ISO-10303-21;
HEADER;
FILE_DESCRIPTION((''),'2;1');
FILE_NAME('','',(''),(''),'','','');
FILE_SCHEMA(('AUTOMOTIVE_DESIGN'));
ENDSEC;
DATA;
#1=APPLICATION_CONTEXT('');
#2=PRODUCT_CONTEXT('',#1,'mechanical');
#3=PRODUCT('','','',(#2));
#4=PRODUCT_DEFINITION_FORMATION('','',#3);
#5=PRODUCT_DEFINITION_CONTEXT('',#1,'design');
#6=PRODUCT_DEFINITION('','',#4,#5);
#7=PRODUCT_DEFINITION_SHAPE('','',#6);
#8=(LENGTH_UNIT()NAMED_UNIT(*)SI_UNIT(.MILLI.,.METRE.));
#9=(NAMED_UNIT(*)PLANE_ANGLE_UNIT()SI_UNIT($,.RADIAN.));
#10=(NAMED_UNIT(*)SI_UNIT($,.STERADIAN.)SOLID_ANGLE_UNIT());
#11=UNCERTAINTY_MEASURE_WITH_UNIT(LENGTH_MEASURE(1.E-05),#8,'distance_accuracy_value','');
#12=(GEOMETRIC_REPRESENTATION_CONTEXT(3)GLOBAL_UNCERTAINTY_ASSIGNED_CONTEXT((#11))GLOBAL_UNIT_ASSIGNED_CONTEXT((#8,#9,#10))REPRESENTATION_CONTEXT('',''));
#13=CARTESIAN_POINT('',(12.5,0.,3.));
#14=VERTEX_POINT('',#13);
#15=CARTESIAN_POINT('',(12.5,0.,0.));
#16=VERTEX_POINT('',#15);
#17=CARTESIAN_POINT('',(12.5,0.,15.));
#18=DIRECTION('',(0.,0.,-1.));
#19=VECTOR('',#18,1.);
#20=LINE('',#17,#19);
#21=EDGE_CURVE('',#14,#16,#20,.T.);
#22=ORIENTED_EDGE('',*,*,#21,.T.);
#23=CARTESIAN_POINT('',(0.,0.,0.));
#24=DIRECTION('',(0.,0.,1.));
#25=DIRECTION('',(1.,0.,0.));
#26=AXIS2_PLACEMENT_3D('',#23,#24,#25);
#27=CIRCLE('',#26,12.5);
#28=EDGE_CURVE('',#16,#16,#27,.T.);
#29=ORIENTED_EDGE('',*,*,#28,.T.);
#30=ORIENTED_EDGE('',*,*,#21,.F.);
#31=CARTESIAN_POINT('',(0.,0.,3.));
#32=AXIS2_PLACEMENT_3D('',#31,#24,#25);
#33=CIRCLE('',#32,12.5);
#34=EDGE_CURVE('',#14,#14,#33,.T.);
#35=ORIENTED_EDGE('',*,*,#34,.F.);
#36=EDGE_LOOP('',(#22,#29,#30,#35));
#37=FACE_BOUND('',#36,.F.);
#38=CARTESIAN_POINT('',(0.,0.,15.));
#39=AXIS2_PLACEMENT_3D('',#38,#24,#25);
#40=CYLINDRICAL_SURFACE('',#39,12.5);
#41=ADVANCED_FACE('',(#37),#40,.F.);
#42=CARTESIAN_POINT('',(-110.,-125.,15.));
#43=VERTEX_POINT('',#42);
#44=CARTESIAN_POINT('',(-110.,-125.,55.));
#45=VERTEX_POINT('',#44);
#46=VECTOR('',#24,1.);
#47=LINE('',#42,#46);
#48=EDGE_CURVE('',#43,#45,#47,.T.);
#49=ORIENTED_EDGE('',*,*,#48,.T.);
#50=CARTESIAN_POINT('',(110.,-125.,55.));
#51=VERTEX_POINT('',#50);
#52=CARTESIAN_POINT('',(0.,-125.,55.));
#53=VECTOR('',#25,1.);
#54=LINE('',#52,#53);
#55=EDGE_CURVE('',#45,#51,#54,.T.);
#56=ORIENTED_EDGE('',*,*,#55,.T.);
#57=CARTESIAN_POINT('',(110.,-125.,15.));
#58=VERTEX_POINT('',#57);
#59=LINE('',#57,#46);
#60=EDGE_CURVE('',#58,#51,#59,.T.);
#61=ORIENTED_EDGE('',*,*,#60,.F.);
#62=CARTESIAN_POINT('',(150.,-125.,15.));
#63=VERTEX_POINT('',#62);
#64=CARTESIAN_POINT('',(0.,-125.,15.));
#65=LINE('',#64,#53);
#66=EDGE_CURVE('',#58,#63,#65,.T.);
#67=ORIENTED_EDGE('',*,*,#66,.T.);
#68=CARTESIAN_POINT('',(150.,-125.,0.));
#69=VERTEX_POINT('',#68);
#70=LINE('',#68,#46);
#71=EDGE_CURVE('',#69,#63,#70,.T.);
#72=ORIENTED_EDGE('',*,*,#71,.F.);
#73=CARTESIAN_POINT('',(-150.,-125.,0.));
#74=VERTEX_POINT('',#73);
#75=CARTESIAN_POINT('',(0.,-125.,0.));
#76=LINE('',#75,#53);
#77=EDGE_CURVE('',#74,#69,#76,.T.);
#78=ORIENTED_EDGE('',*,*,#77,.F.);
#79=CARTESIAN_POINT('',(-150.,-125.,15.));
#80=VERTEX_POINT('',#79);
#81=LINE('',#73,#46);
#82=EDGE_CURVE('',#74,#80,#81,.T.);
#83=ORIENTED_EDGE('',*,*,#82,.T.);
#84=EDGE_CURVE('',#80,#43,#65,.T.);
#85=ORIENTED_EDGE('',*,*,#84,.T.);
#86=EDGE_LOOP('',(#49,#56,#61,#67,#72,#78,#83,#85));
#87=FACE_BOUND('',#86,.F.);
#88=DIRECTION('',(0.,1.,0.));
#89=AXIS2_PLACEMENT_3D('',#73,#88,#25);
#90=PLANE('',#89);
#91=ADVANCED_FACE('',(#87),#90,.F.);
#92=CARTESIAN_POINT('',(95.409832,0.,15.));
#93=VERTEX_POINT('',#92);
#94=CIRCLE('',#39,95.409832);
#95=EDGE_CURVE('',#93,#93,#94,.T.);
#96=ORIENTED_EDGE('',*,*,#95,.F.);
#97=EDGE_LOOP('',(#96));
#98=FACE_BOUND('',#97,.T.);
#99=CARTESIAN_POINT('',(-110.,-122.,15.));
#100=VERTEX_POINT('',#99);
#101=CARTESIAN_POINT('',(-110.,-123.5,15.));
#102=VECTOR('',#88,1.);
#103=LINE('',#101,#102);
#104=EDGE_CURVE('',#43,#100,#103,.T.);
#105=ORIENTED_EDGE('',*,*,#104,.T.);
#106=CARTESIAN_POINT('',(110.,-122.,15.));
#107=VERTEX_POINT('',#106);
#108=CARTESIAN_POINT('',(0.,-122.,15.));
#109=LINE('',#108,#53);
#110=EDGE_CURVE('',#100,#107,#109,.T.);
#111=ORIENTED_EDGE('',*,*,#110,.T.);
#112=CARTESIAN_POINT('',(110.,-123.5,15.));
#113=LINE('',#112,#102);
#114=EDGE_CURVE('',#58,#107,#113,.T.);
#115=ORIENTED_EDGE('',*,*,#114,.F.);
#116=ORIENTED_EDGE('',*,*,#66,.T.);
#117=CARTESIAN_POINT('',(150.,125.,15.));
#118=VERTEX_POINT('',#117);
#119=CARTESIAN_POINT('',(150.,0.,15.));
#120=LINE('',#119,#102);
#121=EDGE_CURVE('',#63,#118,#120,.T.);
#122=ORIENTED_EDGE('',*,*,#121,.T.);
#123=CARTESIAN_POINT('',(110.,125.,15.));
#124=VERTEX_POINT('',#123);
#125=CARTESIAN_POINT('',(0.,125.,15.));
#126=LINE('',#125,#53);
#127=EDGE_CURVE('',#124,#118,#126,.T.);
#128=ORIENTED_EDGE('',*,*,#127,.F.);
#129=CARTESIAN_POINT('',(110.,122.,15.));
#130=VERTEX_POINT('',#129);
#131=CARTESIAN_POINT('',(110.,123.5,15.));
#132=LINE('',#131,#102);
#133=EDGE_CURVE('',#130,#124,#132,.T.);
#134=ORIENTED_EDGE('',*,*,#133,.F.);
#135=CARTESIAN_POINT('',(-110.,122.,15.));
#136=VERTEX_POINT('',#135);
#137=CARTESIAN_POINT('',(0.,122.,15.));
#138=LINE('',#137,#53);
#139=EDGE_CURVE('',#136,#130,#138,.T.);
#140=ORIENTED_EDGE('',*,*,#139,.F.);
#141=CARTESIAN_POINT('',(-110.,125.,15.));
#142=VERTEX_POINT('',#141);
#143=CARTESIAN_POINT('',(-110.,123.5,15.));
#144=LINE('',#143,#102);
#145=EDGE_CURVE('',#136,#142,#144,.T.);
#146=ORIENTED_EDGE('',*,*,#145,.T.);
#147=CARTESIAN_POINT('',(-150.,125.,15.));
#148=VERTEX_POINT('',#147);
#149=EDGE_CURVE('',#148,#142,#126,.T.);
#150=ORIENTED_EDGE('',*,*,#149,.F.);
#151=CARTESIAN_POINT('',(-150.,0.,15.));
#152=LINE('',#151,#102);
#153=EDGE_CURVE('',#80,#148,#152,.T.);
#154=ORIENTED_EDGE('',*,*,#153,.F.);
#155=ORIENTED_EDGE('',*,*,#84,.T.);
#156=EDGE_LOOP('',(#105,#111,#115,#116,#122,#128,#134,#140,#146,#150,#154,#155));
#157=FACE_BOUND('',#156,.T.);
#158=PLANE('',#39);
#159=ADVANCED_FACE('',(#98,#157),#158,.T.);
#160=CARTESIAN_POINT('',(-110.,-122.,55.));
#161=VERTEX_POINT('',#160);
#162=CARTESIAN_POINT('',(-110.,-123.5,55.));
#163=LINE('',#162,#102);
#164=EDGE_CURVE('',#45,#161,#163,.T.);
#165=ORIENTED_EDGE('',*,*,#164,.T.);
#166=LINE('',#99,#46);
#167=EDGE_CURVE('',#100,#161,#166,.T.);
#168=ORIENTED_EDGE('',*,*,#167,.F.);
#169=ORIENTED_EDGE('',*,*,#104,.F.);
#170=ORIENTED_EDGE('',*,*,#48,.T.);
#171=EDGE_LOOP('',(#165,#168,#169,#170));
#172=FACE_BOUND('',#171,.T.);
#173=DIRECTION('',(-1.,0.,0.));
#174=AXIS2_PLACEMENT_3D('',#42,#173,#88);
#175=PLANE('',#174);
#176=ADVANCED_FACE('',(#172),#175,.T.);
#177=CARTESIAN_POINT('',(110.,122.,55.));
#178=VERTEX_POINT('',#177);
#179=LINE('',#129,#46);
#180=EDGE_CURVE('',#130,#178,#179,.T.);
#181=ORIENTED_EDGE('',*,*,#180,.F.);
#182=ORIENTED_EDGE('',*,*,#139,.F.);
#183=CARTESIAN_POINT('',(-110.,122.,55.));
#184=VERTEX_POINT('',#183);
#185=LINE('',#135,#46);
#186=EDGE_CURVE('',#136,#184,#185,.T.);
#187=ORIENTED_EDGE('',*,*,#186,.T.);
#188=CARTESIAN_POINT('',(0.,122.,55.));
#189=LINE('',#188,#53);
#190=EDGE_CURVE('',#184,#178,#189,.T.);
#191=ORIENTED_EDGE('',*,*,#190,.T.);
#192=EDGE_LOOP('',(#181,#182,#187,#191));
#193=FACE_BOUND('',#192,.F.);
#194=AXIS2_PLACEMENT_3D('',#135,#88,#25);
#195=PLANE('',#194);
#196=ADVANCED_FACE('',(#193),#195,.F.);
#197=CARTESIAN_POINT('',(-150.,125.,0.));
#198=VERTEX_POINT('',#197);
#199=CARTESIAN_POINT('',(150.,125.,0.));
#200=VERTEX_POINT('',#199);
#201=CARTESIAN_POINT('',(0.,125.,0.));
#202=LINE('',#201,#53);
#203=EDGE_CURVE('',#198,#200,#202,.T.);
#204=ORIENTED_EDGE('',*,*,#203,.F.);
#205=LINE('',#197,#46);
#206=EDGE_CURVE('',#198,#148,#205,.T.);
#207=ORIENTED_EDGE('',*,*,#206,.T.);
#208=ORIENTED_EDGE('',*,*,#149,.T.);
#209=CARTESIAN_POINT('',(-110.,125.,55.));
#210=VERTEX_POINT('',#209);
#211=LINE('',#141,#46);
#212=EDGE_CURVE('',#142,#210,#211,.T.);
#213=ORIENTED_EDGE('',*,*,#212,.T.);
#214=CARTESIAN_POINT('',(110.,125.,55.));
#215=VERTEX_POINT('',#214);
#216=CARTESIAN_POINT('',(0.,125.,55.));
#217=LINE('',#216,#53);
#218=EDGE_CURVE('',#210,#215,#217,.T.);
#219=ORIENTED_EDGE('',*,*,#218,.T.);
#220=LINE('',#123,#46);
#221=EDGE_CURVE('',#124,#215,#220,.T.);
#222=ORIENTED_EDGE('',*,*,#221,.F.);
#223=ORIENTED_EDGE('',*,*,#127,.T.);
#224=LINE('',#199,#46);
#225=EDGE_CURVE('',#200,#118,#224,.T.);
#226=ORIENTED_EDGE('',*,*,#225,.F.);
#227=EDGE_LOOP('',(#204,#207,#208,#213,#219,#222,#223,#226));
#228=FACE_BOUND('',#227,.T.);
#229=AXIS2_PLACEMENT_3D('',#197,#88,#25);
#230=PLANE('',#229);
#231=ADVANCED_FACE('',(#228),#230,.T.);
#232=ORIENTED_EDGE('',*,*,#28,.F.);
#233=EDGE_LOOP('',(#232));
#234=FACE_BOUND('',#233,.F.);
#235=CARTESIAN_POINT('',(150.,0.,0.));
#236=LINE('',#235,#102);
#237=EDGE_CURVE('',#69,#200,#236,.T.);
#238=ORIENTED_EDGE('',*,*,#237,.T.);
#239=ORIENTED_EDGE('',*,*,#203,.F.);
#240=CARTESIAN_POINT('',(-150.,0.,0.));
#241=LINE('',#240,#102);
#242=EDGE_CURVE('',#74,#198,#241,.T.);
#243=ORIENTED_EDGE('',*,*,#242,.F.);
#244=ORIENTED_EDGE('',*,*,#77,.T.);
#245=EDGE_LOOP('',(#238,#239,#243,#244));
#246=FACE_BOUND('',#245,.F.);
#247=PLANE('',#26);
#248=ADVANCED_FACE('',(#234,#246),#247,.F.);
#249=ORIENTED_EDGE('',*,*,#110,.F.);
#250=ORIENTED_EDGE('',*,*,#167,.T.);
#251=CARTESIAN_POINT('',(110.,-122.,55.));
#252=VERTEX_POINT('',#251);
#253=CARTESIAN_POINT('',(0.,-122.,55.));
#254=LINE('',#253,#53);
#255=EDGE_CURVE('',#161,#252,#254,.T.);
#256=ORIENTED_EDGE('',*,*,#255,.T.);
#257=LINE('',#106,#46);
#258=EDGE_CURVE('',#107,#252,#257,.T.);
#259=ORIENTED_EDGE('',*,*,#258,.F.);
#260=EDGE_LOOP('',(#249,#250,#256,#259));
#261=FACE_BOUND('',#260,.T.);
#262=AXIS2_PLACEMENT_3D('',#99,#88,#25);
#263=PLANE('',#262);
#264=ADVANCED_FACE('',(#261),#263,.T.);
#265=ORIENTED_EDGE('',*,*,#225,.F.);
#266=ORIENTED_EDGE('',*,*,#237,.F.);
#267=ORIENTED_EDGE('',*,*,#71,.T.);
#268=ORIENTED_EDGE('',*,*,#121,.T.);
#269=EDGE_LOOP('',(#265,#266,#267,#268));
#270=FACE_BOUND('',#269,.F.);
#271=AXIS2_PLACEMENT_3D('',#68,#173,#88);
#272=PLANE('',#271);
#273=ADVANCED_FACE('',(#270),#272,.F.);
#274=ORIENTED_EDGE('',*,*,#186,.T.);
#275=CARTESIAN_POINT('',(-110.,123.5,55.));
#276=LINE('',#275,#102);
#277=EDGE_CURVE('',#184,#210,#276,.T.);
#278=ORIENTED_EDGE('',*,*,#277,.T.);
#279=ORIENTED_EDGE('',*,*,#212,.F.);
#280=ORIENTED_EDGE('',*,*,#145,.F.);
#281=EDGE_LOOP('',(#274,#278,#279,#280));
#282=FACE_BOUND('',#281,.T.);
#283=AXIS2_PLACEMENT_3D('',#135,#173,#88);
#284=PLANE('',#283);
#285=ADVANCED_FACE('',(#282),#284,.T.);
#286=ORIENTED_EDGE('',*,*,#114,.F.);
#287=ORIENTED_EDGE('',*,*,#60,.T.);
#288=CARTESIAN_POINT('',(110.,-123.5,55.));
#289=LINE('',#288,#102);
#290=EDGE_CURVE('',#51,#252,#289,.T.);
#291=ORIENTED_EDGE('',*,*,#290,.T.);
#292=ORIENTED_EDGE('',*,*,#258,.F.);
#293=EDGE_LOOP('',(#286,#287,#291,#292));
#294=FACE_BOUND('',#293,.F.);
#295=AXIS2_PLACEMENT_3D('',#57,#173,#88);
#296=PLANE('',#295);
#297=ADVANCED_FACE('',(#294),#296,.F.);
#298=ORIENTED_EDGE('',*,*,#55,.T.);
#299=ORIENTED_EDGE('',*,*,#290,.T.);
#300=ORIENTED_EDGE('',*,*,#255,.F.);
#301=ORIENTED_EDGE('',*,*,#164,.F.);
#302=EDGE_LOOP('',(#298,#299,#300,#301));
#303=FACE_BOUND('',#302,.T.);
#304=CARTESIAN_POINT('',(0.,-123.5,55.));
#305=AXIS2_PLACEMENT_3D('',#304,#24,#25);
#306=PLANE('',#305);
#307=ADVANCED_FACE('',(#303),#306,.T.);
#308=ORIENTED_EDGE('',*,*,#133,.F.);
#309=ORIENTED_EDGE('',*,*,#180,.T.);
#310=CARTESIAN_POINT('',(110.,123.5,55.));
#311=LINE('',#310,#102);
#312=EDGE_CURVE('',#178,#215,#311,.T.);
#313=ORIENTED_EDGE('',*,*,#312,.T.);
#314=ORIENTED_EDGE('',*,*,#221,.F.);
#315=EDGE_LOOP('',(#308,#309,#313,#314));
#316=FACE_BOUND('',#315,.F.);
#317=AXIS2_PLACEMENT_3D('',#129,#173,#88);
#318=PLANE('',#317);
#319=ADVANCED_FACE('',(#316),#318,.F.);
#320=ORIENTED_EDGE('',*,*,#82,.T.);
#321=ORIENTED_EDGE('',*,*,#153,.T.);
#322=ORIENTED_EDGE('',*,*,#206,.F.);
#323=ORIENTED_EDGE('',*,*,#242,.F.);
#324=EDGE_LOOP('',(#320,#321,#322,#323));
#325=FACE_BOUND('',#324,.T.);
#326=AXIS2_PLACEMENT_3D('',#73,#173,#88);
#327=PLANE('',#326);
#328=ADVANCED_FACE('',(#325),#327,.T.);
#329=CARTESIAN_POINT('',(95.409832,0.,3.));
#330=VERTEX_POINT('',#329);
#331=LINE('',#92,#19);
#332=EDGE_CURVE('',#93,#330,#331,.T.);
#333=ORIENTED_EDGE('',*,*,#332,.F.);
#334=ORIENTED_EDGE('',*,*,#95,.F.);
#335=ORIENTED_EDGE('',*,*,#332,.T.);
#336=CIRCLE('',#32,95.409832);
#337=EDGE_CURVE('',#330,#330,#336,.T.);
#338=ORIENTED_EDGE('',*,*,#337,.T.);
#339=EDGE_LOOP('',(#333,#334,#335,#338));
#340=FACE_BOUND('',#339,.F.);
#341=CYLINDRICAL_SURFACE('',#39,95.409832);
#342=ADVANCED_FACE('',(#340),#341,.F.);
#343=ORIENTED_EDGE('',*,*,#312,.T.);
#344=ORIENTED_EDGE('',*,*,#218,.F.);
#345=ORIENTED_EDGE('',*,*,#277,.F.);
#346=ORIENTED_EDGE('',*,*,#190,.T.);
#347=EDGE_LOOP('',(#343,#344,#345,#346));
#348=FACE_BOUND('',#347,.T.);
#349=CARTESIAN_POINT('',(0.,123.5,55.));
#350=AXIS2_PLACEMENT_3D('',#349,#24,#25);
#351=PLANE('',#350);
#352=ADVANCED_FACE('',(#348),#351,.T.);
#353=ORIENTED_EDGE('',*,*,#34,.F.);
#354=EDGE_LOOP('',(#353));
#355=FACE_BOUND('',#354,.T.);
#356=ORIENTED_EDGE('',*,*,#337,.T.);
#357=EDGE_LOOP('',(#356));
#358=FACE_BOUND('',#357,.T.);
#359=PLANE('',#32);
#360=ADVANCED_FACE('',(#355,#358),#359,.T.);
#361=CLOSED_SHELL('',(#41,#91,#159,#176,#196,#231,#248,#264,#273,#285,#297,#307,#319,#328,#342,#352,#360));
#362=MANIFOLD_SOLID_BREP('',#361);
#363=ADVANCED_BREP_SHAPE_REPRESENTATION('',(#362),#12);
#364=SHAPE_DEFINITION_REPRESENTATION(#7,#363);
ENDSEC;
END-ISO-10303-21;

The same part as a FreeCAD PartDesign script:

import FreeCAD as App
import Part
import Sketcher
from FreeCAD import Vector


def add_polygon(sketch, points):
    """Adds a closed chain of lines whose ends are joined by coincident constraints."""
    first, n = sketch.GeometryCount, len(points)
    for a, b in zip(points, points[1:] + points[:1]):
        sketch.addGeometry(Part.LineSegment(App.Vector(*a, 0), App.Vector(*b, 0)), False)
    for i in range(n):
        sketch.addConstraint(Sketcher.Constraint("Coincident", first + i, 2, first + (i + 1) % n, 1))

doc = App.newDocument("Part")
params = doc.addObject("Spreadsheet::Sheet", "Params")
for row, (alias, value) in enumerate([
    ("sketch1_width", "300 mm"),
    ("sketch1_height", "250 mm"),
    ("pad1_length", "15 mm"),
    ("pocket1_length", "12 mm"),
    ("sketch3_diameter", "25 mm"),
    ("sketch4_width", "220 mm"),
    ("sketch4_height", "3 mm"),
    ("pad2_length", "40 mm"),
], start=1):
    params.set(f"A{row}", alias)
    params.set(f"B{row}", "=" + value)
    params.setAlias(f"B{row}", alias)

body = doc.addObject("PartDesign::Body", "Body")

# Sketch on XY plane
sketch1 = body.newObject("Sketcher::SketchObject", "Sketch")
sketch1.AttachmentSupport = (doc.getObject("XY_Plane"), [""])
sketch1.MapMode = "FlatFace"
add_polygon(sketch1, [(-150, 125), (-150, -125), (150, -125), (150, 125)])  # lines 0-3
sketch1.addConstraint(Sketcher.Constraint("Vertical", 0))
sketch1.addConstraint(Sketcher.Constraint("Horizontal", 1))
sketch1.addConstraint(Sketcher.Constraint("Vertical", 2))
sketch1.addConstraint(Sketcher.Constraint("Horizontal", 3))
sketch1.addConstraint(Sketcher.Constraint("Symmetric", 0, 2, 2, 2, -1, 1))
sketch1.addConstraint(Sketcher.Constraint("DistanceX", 1, 1, 1, 2, 300.0))
sketch1.addConstraint(Sketcher.Constraint("DistanceY", 0, 2, 0, 1, 250.0))
sketch1.setExpression("Constraints[9]", "Params.sketch1_width")
sketch1.setExpression("Constraints[10]", "Params.sketch1_height")
pad1 = body.newObject("PartDesign::Pad", "Pad")
pad1.Profile = sketch1
pad1.setExpression("Length", "Params.pad1_length")

# Sketch on XY plane
sketch2 = body.newObject("Sketcher::SketchObject", "Sketch001")
sketch2.AttachmentSupport = (doc.getObject("XY_Plane"), [""])
sketch2.MapMode = "FlatFace"
sketch2.AttachmentOffset = App.Placement(Vector(0, 0, 15), App.Rotation())
sketch2.addGeometry(Part.Circle(Vector(0, 0, 0), Vector(0, 0, 1), 95), False)
sketch2.addConstraint(Sketcher.Constraint("Coincident", 0, 3, -1, 1))
sketch2.addConstraint(Sketcher.Constraint("Diameter", 0, 190.819664))
pocket1 = body.newObject("PartDesign::Pocket", "Pocket")
pocket1.Profile = sketch2
pocket1.setExpression("Length", "Params.pocket1_length")

# Sketch on XY plane
sketch3 = body.newObject("Sketcher::SketchObject", "Sketch002")
sketch3.AttachmentSupport = (doc.getObject("XY_Plane"), [""])
sketch3.MapMode = "FlatFace"
sketch3.AttachmentOffset = App.Placement(Vector(0, 0, 15), App.Rotation())
sketch3.addGeometry(Part.Circle(Vector(0, 0, 0), Vector(0, 0, 1), 12), False)
sketch3.addConstraint(Sketcher.Constraint("Coincident", 0, 3, -1, 1))
sketch3.addConstraint(Sketcher.Constraint("Diameter", 0, 25.0))
sketch3.setExpression("Constraints[1]", "Params.sketch3_diameter")
pocket2 = body.newObject("PartDesign::Pocket", "Pocket001")
pocket2.Profile = sketch3
pocket2.Type = "ThroughAll"

# Sketch on XY plane
sketch4 = body.newObject("Sketcher::SketchObject", "Sketch003")
sketch4.AttachmentSupport = (doc.getObject("XY_Plane"), [""])
sketch4.MapMode = "FlatFace"
sketch4.AttachmentOffset = App.Placement(Vector(0, 0, 15), App.Rotation())
add_polygon(sketch4, [(-110, 125), (-110, 122), (110, 122), (110, 125)])  # lines 0-3
add_polygon(sketch4, [(-110, -122), (-110, -125), (110, -125), (110, -122)])  # lines 4-7
sketch4.addConstraint(Sketcher.Constraint("Vertical", 0))
sketch4.addConstraint(Sketcher.Constraint("Horizontal", 1))
sketch4.addConstraint(Sketcher.Constraint("Vertical", 2))
sketch4.addConstraint(Sketcher.Constraint("Horizontal", 3))
sketch4.addConstraint(Sketcher.Constraint("Vertical", 4))
sketch4.addConstraint(Sketcher.Constraint("Horizontal", 5))
sketch4.addConstraint(Sketcher.Constraint("Vertical", 6))
sketch4.addConstraint(Sketcher.Constraint("Horizontal", 7))
sketch4.addConstraint(Sketcher.Constraint("Symmetric", 2, 2, 4, 2, -1, 1))
sketch4.addConstraint(Sketcher.Constraint("Symmetric", 0, 2, 6, 2, -1, 1))
sketch4.addConstraint(Sketcher.Constraint("Vertical", 3, 2, 4, 2))
sketch4.addConstraint(Sketcher.Constraint("DistanceX", 1, 1, 1, 2, 220.0))
sketch4.addConstraint(Sketcher.Constraint("DistanceY", 0, 2, 0, 1, 3.0))
sketch4.addConstraint(Sketcher.Constraint("DistanceY", -1, 1, 0, 2, 122.0))
sketch4.setExpression("Constraints[19]", "Params.sketch4_width")
sketch4.setExpression("Constraints[20]", "Params.sketch4_height")
pad2 = body.newObject("PartDesign::Pad", "Pad001")
pad2.Profile = sketch4
pad2.setExpression("Length", "Params.pad2_length")

doc.recompute()
